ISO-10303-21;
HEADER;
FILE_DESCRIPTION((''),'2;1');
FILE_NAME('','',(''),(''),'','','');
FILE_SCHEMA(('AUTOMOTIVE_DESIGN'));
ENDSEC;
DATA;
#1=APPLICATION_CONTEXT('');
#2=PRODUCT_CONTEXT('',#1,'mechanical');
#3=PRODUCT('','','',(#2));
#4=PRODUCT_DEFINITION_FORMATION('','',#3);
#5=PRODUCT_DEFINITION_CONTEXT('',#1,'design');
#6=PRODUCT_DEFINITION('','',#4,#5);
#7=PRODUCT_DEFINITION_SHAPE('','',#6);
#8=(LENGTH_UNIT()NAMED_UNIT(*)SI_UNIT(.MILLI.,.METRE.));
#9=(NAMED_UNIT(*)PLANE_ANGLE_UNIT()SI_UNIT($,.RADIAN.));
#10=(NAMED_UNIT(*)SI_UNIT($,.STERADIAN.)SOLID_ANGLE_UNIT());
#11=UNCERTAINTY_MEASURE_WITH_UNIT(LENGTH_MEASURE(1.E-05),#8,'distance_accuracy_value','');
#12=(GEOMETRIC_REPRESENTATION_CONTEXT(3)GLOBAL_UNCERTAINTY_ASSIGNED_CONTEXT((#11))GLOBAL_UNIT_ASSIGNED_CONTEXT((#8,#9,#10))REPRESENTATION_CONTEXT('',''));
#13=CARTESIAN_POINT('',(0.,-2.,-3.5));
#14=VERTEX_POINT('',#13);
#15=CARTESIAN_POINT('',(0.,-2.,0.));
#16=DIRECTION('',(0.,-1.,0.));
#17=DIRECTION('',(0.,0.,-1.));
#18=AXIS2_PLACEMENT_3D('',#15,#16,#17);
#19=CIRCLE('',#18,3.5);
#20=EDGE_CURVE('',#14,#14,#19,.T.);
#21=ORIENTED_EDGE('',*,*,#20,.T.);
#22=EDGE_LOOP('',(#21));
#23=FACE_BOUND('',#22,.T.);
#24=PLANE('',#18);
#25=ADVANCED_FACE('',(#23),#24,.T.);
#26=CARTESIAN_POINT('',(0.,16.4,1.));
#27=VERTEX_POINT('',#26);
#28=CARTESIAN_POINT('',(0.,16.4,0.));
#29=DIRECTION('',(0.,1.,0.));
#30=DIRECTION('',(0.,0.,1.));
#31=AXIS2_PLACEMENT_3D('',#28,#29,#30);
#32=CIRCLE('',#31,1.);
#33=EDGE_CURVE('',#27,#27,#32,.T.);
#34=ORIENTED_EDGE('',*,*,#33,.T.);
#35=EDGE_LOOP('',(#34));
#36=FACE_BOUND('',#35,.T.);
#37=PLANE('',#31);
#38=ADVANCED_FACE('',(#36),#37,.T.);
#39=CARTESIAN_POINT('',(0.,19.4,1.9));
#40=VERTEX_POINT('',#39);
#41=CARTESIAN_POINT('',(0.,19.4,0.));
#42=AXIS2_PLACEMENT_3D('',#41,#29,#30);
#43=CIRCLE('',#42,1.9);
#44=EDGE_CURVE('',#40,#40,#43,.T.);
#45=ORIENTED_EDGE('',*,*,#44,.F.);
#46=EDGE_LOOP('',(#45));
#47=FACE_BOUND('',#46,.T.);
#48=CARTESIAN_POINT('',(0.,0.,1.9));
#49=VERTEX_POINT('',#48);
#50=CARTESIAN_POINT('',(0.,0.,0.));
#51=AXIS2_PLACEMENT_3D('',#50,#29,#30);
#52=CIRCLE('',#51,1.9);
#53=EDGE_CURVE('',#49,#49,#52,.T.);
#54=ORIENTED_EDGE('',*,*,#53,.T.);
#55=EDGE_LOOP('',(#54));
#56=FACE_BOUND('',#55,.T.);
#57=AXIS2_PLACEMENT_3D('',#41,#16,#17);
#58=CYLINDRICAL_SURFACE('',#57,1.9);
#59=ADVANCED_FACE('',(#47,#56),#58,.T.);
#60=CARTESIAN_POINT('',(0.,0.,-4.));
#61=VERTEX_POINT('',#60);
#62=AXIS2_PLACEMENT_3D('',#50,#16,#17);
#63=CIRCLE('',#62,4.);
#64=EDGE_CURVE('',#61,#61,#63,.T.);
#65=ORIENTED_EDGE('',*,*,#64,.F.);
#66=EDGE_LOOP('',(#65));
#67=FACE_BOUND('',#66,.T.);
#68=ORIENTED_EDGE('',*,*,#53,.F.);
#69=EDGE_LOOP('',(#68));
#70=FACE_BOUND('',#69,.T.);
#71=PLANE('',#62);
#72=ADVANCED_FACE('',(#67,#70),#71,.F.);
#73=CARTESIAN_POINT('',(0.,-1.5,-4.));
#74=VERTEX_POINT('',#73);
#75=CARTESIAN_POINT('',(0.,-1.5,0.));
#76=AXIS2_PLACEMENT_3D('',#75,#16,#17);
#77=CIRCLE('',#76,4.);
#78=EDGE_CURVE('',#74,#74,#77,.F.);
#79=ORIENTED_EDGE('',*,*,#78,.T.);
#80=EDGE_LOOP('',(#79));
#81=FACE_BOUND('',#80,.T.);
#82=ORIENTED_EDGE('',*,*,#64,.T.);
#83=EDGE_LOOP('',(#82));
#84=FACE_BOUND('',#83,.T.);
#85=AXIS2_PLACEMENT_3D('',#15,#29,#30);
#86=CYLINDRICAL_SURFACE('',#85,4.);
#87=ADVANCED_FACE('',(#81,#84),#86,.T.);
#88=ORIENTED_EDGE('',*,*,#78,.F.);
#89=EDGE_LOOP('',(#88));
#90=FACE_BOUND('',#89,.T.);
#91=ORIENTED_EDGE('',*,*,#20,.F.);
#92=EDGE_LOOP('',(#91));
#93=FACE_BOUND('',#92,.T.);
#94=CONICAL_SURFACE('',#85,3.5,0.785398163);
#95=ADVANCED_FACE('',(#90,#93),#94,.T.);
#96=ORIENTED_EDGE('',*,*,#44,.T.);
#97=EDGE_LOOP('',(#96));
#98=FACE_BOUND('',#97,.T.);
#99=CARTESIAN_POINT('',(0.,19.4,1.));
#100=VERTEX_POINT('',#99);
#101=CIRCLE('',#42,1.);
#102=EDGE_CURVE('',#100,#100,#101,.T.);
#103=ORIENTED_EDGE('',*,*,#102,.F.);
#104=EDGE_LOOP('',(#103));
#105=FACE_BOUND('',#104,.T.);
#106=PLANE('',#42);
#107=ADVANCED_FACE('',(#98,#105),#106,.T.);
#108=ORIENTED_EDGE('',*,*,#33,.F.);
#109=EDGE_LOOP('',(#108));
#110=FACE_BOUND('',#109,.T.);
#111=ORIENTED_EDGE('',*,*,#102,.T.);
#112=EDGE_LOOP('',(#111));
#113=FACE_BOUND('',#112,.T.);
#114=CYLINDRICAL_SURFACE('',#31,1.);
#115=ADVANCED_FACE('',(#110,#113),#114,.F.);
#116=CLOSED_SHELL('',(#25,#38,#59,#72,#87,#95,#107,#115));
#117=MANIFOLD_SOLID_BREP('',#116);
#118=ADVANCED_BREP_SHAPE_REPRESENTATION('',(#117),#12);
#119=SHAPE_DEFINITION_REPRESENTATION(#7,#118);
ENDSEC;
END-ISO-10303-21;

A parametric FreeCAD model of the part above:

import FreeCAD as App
import Part
import Sketcher

V = App.Vector
Q = App.Units.Quantity


def edges_at(feature, points):
    """Names of the edges that pass closest to the given points."""
    edges = feature.Shape.Edges
    near = lambda p: min(range(len(edges)), key=lambda i: edges[i].distToShape(Part.Vertex(*p))[0])
    return sorted({f"Edge{near(p) + 1}" for p in points})

doc = App.newDocument("Part")
body = doc.addObject("PartDesign::Body", "Body")

# Sketch on XZ plane
sketch1 = doc.addObject("Sketcher::SketchObject", "Sketch")
body.addObject(sketch1)
sketch1.AttachmentSupport = (doc.XZ_Plane, [""])
sketch1.MapMode = "FlatFace"
sketch1.addGeometry(Part.Circle(V(0, 0, 0), V(0, 0, 1), 1.9), False)
sketch1.addConstraint(Sketcher.Constraint("Coincident", 0, 3, -1, 1))
sketch1.addConstraint(Sketcher.Constraint("Diameter", 0, Q("3.8 mm")))
pad1 = doc.addObject("PartDesign::Pad", "Pad")
body.addObject(pad1)
pad1.Profile = sketch1
pad1.Length = 19.4
pad1.Reversed = True

# Sketch on XZ plane
sketch2 = doc.addObject("Sketcher::SketchObject", "Sketch001")
body.addObject(sketch2)
sketch2.AttachmentSupport = (doc.XZ_Plane, [""])
sketch2.MapMode = "FlatFace"
sketch2.addGeometry(Part.Circle(V(0, 0, 0), V(0, 0, 1), 4), False)
sketch2.addConstraint(Sketcher.Constraint("Coincident", 0, 3, -1, 1))
sketch2.addConstraint(Sketcher.Constraint("Diameter", 0, Q("8 mm")))
pad2 = doc.addObject("PartDesign::Pad", "Pad001")
body.addObject(pad2)
pad2.Profile = sketch2
pad2.Length = 2
doc.recompute()

chamfer = doc.addObject("PartDesign::Chamfer", "Chamfer")
body.addObject(chamfer)
chamfer.Base = (pad2, edges_at(pad2, [(0, -2, 4)]))
chamfer.Size = 0.5

# Sketch on XZ plane
sketch3 = doc.addObject("Sketcher::SketchObject", "Sketch002")
body.addObject(sketch3)
sketch3.AttachmentSupport = (doc.XZ_Plane, [""])
sketch3.MapMode = "FlatFace"
sketch3.AttachmentOffset = App.Placement(V(0, 0, -19.4), App.Rotation())
sketch3.addGeometry(Part.Circle(V(0, 0, 0), V(0, 0, 1), 1), False)
sketch3.addConstraint(Sketcher.Constraint("Coincident", 0, 3, -1, 1))
sketch3.addConstraint(Sketcher.Constraint("Diameter", 0, Q("2 mm")))
pocket1 = doc.addObject("PartDesign::Pocket", "Pocket")
body.addObject(pocket1)
pocket1.Profile = sketch3
pocket1.Length = 3
pocket1.Reversed = True

doc.recompute()
